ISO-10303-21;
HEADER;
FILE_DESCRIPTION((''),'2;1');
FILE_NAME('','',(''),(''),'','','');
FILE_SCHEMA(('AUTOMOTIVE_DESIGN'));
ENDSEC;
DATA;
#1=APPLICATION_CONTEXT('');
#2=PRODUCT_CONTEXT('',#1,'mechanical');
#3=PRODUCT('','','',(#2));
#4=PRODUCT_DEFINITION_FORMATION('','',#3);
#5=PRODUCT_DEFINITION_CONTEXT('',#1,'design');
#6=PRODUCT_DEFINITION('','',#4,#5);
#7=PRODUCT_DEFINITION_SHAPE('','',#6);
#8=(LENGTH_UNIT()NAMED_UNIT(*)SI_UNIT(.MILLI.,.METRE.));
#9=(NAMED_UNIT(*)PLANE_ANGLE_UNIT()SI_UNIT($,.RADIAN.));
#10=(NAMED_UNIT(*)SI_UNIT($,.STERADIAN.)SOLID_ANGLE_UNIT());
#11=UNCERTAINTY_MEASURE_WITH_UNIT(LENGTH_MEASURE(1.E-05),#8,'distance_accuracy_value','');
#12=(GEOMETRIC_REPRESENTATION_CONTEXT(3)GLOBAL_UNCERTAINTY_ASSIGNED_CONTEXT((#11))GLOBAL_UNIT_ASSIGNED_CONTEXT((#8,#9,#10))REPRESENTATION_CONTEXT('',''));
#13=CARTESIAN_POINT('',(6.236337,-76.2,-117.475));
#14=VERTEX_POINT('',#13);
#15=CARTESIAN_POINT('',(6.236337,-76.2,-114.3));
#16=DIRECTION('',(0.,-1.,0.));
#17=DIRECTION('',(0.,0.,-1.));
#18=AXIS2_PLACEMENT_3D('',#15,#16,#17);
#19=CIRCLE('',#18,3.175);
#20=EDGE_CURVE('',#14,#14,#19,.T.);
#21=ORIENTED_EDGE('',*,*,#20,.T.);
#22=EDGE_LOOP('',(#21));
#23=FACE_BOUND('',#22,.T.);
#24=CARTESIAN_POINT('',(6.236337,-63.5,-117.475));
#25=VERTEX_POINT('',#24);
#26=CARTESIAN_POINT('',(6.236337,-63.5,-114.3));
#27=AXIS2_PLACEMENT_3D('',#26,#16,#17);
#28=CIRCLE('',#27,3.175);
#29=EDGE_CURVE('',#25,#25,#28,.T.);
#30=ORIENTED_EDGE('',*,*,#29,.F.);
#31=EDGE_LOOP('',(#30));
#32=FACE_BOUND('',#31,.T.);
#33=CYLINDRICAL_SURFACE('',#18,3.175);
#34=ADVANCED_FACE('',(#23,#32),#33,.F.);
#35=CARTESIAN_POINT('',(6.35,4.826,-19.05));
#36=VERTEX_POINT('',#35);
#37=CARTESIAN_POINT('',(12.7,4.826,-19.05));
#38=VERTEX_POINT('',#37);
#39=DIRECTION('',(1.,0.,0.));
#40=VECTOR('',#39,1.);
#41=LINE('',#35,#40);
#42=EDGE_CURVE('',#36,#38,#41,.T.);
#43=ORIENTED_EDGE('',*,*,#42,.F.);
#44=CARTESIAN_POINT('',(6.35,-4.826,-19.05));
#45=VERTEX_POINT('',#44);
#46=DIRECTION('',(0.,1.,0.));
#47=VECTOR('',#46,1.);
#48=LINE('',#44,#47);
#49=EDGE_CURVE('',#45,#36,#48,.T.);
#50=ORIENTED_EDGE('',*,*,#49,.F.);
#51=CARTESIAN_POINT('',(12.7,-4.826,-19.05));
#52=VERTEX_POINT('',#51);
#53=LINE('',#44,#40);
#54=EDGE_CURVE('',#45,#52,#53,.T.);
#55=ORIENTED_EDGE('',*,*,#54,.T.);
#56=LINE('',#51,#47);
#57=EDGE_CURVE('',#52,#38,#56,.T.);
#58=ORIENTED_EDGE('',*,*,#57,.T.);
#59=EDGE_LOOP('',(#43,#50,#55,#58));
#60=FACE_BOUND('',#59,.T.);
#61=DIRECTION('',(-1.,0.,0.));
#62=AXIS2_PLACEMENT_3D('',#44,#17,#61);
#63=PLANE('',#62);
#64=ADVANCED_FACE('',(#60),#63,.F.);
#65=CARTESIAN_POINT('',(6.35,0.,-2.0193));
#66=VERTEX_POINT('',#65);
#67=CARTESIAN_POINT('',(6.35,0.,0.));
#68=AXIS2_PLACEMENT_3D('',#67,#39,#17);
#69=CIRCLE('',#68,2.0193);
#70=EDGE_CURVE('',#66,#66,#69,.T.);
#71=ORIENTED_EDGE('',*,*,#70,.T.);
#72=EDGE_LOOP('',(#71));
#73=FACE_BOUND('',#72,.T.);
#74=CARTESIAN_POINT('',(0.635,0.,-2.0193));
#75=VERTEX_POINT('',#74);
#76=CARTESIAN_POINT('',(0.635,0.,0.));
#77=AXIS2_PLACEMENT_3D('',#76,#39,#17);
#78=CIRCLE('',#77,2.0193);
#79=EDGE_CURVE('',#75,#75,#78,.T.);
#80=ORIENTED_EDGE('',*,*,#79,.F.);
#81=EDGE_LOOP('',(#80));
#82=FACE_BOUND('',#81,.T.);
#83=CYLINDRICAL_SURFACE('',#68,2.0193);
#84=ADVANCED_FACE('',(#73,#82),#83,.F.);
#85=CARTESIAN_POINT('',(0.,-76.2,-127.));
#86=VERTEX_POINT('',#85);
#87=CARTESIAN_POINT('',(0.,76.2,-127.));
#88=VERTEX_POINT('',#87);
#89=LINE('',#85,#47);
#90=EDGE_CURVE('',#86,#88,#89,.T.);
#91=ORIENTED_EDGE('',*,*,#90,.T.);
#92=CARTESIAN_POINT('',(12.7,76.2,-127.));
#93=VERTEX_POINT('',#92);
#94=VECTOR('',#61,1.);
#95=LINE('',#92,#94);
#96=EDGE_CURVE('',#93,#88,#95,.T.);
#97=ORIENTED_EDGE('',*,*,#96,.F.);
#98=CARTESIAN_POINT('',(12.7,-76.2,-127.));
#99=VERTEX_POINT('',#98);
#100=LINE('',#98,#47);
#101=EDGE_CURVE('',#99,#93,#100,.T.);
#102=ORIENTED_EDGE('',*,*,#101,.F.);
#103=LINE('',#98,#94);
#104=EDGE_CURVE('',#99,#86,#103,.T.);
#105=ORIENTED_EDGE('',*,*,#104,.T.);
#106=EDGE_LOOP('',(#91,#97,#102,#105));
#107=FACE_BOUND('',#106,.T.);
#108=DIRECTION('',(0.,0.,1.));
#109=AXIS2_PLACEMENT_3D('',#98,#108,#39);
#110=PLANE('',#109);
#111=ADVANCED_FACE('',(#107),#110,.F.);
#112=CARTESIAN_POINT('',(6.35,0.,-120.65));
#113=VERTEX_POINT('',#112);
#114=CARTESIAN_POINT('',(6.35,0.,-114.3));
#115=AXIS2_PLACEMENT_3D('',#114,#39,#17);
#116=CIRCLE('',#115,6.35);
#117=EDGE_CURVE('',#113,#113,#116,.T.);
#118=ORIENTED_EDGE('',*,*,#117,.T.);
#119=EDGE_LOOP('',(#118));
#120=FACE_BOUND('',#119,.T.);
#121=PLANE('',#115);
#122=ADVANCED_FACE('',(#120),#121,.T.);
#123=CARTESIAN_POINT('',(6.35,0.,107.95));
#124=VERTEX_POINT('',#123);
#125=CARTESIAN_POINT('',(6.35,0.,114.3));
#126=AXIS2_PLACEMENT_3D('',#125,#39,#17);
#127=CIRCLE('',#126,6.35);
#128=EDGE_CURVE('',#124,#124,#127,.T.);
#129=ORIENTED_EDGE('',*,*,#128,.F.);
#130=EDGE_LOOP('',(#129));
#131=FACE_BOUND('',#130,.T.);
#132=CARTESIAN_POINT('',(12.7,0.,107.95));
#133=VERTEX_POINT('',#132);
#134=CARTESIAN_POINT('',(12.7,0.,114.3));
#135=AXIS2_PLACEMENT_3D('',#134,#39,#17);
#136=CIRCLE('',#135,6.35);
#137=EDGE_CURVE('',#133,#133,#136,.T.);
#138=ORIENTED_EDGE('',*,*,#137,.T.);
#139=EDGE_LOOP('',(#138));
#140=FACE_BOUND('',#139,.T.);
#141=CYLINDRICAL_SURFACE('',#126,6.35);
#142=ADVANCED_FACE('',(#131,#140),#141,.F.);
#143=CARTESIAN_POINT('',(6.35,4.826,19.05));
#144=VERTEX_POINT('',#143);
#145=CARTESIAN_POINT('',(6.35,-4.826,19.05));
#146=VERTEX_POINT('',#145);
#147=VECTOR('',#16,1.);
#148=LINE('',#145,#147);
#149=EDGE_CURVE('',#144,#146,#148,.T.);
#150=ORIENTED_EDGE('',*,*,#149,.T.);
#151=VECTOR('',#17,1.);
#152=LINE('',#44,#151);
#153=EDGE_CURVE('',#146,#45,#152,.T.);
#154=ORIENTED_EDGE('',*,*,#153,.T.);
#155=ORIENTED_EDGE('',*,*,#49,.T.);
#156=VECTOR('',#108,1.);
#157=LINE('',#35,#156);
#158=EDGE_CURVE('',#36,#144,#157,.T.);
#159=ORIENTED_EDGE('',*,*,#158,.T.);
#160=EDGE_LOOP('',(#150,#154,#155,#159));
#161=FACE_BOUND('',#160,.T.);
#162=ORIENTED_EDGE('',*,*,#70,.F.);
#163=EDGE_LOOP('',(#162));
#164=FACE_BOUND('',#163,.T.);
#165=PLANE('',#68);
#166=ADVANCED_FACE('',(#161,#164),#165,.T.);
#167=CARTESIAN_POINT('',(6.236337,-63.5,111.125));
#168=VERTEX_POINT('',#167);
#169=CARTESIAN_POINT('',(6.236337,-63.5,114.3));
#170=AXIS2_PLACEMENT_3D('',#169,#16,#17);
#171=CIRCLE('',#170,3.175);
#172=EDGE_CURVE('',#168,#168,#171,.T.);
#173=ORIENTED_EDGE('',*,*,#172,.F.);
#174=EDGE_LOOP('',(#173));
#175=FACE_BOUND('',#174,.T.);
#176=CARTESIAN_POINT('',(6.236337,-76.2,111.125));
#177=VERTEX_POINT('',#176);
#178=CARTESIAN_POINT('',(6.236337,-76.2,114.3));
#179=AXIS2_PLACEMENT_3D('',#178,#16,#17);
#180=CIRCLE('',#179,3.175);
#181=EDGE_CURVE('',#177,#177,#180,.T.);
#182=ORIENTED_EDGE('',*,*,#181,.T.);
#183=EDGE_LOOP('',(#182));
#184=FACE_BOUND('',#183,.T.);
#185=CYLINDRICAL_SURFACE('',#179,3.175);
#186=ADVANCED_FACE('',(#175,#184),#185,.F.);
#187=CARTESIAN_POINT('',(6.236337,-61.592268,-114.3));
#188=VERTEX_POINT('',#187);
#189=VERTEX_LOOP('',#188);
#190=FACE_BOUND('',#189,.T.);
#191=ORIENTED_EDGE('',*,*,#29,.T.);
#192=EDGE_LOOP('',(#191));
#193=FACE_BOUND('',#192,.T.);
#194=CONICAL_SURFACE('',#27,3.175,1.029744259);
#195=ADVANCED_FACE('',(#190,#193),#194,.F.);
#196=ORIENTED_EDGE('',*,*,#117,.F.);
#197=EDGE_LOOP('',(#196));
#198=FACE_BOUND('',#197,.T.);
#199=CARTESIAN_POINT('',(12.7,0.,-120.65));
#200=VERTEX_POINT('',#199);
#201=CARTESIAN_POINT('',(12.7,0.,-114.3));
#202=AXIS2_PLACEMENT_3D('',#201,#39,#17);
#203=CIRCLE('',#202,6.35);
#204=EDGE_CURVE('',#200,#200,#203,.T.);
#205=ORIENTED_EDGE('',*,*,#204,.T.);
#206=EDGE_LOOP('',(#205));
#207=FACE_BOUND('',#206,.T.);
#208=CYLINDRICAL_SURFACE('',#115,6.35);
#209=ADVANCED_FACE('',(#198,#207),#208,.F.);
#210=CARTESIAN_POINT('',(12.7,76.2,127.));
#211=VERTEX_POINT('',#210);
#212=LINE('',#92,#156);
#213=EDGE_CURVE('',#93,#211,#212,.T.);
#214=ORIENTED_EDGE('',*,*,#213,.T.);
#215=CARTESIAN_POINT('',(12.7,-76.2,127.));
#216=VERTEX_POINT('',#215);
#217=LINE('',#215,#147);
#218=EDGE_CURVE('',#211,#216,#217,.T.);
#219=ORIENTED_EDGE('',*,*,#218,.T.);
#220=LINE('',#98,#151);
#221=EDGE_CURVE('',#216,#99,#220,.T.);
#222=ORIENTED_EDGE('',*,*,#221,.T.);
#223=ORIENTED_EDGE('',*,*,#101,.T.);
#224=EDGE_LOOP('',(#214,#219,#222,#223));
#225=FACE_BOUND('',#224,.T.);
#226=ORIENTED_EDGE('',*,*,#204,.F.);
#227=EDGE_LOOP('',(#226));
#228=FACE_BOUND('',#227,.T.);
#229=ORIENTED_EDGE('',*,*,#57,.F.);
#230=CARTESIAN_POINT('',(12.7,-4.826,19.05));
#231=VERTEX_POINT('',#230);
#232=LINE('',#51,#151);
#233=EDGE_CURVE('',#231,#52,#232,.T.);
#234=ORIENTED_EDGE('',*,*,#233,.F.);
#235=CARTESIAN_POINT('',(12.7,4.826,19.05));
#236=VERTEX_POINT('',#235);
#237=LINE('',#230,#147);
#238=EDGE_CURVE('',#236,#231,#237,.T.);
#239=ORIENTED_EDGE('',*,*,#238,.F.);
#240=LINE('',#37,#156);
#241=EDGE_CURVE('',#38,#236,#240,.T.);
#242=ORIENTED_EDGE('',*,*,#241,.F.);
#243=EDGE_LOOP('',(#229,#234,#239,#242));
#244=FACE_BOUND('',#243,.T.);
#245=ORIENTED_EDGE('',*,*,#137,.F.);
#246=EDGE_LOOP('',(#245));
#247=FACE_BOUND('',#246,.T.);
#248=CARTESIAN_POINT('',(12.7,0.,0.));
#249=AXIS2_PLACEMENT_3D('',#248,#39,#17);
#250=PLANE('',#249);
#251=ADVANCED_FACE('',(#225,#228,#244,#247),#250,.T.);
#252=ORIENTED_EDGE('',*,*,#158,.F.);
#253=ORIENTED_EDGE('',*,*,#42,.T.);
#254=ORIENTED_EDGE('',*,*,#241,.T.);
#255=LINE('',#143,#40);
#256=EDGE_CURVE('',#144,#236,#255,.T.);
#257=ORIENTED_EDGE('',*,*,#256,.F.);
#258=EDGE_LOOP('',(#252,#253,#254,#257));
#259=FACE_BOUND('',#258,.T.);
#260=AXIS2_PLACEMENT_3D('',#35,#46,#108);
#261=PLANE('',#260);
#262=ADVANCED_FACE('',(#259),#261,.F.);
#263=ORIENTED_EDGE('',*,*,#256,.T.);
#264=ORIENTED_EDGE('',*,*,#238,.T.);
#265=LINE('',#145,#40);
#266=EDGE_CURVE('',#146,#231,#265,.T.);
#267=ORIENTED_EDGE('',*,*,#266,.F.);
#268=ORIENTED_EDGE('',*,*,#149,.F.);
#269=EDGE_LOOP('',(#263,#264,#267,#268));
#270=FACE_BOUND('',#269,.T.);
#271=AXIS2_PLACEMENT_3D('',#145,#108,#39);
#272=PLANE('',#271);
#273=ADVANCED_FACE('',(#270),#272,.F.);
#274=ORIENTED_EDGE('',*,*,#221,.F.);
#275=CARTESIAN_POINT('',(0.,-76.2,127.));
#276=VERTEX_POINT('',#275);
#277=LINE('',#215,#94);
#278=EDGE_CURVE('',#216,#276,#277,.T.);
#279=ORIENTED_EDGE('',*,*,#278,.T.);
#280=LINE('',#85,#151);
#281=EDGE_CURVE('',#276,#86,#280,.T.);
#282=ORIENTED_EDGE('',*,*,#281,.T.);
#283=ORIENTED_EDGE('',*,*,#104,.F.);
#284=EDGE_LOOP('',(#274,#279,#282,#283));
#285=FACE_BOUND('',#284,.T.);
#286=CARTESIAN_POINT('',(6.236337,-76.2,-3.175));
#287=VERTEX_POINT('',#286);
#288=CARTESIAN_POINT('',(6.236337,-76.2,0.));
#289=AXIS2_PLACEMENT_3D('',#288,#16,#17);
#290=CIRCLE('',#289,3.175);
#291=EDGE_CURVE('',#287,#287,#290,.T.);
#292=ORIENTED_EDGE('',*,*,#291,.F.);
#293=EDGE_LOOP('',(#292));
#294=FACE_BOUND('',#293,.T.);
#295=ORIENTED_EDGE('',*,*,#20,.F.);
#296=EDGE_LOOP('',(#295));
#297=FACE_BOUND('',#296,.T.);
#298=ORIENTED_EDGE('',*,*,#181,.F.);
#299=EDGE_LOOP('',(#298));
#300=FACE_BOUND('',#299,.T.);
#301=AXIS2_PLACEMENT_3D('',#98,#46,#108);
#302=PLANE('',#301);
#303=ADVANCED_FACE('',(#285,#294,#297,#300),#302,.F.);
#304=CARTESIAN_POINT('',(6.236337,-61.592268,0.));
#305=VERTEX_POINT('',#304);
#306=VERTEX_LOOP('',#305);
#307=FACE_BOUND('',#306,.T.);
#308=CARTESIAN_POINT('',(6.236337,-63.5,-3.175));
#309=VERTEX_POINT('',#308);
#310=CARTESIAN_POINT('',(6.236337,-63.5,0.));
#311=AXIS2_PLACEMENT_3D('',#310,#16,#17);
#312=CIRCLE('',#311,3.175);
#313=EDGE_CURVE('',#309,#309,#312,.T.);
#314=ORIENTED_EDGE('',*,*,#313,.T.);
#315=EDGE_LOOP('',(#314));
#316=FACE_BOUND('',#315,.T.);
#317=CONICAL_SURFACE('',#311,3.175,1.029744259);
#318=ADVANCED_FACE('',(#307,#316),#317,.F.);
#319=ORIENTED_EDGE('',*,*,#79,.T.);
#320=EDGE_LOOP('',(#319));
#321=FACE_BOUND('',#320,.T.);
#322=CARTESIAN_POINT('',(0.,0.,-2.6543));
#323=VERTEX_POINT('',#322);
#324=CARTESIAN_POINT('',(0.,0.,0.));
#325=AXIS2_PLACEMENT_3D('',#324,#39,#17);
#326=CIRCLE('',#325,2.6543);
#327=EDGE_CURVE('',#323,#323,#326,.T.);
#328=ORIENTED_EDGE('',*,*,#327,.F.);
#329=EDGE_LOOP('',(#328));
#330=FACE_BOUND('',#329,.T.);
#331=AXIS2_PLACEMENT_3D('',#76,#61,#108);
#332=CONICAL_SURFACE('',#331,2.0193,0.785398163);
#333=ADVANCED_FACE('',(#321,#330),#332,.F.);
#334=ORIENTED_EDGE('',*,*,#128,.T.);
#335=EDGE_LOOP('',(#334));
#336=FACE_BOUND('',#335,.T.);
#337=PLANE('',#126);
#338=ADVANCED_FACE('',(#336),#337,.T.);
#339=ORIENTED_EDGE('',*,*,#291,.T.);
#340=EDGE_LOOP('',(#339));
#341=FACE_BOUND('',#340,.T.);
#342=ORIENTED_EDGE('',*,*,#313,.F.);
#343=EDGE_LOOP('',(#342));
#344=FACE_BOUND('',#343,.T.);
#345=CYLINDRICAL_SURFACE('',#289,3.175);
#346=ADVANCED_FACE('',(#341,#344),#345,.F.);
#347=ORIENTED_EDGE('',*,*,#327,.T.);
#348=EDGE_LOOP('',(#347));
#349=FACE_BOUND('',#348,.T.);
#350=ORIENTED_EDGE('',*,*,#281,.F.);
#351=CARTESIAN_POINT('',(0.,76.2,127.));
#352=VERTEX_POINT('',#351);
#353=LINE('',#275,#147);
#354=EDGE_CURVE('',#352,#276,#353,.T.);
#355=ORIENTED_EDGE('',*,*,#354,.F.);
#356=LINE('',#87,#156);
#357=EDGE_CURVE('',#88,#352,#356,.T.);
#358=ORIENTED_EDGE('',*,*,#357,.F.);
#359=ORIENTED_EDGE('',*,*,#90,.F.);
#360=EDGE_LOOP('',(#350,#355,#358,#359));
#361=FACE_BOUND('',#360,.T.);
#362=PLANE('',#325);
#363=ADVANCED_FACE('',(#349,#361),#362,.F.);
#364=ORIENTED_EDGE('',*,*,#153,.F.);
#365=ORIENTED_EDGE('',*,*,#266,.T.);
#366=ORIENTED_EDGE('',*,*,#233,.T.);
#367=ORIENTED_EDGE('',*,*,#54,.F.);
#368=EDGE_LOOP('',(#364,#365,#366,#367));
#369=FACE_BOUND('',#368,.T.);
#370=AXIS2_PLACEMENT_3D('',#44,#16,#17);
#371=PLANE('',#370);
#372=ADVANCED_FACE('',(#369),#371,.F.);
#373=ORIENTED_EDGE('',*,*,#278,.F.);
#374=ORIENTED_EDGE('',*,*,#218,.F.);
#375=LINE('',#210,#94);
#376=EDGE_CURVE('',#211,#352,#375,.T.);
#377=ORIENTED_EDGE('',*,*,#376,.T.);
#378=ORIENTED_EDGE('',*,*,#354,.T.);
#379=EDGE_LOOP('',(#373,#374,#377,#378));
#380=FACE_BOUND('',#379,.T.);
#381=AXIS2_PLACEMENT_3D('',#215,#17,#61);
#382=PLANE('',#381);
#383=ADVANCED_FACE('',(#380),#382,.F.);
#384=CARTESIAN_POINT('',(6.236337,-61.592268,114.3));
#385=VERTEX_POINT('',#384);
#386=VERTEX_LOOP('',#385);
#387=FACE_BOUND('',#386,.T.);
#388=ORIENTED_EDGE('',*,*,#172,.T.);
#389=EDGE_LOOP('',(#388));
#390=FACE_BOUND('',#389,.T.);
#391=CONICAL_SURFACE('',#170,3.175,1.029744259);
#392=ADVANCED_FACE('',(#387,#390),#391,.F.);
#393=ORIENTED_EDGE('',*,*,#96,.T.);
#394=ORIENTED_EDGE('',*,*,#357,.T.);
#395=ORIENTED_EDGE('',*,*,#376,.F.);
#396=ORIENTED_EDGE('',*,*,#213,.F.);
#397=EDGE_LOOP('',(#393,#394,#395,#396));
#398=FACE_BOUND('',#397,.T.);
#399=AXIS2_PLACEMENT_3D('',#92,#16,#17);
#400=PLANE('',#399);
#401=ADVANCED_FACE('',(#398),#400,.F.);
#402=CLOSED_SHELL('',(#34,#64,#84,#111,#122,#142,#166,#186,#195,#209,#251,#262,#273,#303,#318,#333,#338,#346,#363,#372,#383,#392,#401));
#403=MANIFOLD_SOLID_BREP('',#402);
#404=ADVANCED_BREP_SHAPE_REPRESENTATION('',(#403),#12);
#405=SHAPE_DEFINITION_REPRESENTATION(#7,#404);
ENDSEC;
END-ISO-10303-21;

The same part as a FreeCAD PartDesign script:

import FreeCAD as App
import Part
import Sketcher
from FreeCAD import Vector
Q = App.Units.Quantity


def add_polygon(sketch, points):
    """Adds a closed chain of lines whose ends are joined by coincident constraints."""
    first, n = sketch.GeometryCount, len(points)
    for a, b in zip(points, points[1:] + points[:1]):
        sketch.addGeometry(Part.LineSegment(App.Vector(*a, 0), App.Vector(*b, 0)), False)
    for i in range(n):
        sketch.addConstraint(Sketcher.Constraint("Coincident", first + i, 2, first + (i + 1) % n, 1))

doc = App.newDocument("Part")
body = doc.addObject("PartDesign::Body", "Body")

# Sketch on YZ plane
sketch1 = doc.addObject("Sketcher::SketchObject", "Sketch")
body.addObject(sketch1)
sketch1.AttachmentSupport = (doc.YZ_Plane, [""])
sketch1.MapMode = "FlatFace"
add_polygon(sketch1, [(76.2, 127), (-76.2, 127), (-76.2, -127), (76.2, -127)])  # lines 0-3
sketch1.addConstraint(Sketcher.Constraint("Horizontal", 0))
sketch1.addConstraint(Sketcher.Constraint("Vertical", 1))
sketch1.addConstraint(Sketcher.Constraint("Horizontal", 2))
sketch1.addConstraint(Sketcher.Constraint("Vertical", 3))
sketch1.addConstraint(Sketcher.Constraint("Symmetric", 0, 2, 2, 2, -1, 1))
sketch1.addConstraint(Sketcher.Constraint("DistanceX", 0, 2, 0, 1, Q("6 in")))
sketch1.addConstraint(Sketcher.Constraint("DistanceY", 1, 2, 1, 1, Q("10 in")))
pad1 = doc.addObject("PartDesign::Pad", "Pad")
body.addObject(pad1)
pad1.Profile = sketch1
pad1.Length = Q("0.5 in")

# Sketch on YZ plane
sketch2 = doc.addObject("Sketcher::SketchObject", "Sketch001")
body.addObject(sketch2)
sketch2.AttachmentSupport = (doc.YZ_Plane, [""])
sketch2.MapMode = "FlatFace"
sketch2.AttachmentOffset = App.Placement(Vector(0, 0, 0.5 * 25.4), App.Rotation())
sketch2.addGeometry(Part.Circle(Vector(0, -114.3, 0), Vector(0, 0, 1), 6.35), False)
sketch2.addGeometry(Part.Circle(Vector(0, 114.3, 0), Vector(0, 0, 1), 6.35), False)
sketch2.addConstraint(Sketcher.Constraint("Equal", 0, 1))
sketch2.addConstraint(Sketcher.Constraint("Symmetric", 0, 3, 1, 3, -1, 1))
sketch2.addConstraint(Sketcher.Constraint("PointOnObject", 0, 3, -2))
sketch2.addConstraint(Sketcher.Constraint("Diameter", 0, Q("0.5 in")))
sketch2.addConstraint(Sketcher.Constraint("DistanceY", 0, 3, 1, 3, Q("9 in")))
pocket1 = doc.addObject("PartDesign::Pocket", "Pocket")
body.addObject(pocket1)
pocket1.Profile = sketch2
pocket1.Length = Q("0.25 in")

# Sketch on XZ plane
sketch3 = doc.addObject("Sketcher::SketchObject", "Sketch002")
body.addObject(sketch3)
sketch3.AttachmentSupport = (doc.XZ_Plane, [""])
sketch3.MapMode = "FlatFace"
sketch3.AttachmentOffset = App.Placement(Vector(0, 0, 3 * 25.4), App.Rotation())
sketch3.addGeometry(Part.Circle(Vector(6.236337, 114.3, 0), Vector(0, 0, 1), 3.175), False)
sketch3.addGeometry(Part.Circle(Vector(6.236337, 0, 0), Vector(0, 0, 1), 3.175), False)
sketch3.addGeometry(Part.Circle(Vector(6.236337, -114.3, 0), Vector(0, 0, 1), 3.175), False)
sketch3.addConstraint(Sketcher.Constraint("Equal", 0, 1))
sketch3.addConstraint(Sketcher.Constraint("Equal", 1, 2))
sketch3.addConstraint(Sketcher.Constraint("Symmetric", 0, 3, 2, 3, -1))
sketch3.addConstraint(Sketcher.Constraint("PointOnObject", 1, 3, -1))
sketch3.addConstraint(Sketcher.Constraint("Vertical", 0, 3, 1, 3))
sketch3.addConstraint(Sketcher.Constraint("Diameter", 0, Q("0.25 in")))
sketch3.addConstraint(Sketcher.Constraint("DistanceY", 2, 3, 0, 3, Q("9 in")))
sketch3.addConstraint(Sketcher.Constraint("DistanceX", -1, 1, 0, 3, 6.236337))
doc.recompute()
hole = doc.addObject("PartDesign::Hole", "Hole")
body.addObject(hole)
hole.Profile = sketch3
hole.ThreadType = "None"
hole.Diameter = Q("0.25 in")
hole.DepthType = "Dimension"
hole.Depth = Q("0.5 in")
hole.DrillPoint = "Angled"
hole.DrillPointAngle = 118

# Sketch on YZ plane
sketch4 = doc.addObject("Sketcher::SketchObject", "Sketch003")
body.addObject(sketch4)
sketch4.AttachmentSupport = (doc.YZ_Plane, [""])
sketch4.MapMode = "FlatFace"
sketch4.AttachmentOffset = App.Placement(Vector(0, 0, 0.5 * 25.4), App.Rotation())
add_polygon(sketch4, [(4.826, 19.05), (-4.826, 19.05), (-4.826, -19.05), (4.826, -19.05)])  # lines 0-3
sketch4.addConstraint(Sketcher.Constraint("Horizontal", 0))
sketch4.addConstraint(Sketcher.Constraint("Vertical", 1))
sketch4.addConstraint(Sketcher.Constraint("Horizontal", 2))
sketch4.addConstraint(Sketcher.Constraint("Vertical", 3))
sketch4.addConstraint(Sketcher.Constraint("Symmetric", 0, 2, 2, 2, -1, 1))
sketch4.addConstraint(Sketcher.Constraint("DistanceY", 1, 2, 1, 1, Q("1.5 in")))
sketch4.addConstraint(Sketcher.Constraint("DistanceX", 0, 2, 0, 1, Q("0.38 in")))
pocket2 = doc.addObject("PartDesign::Pocket", "Pocket001")
body.addObject(pocket2)
pocket2.Profile = sketch4
pocket2.Length = Q("0.25 in")

# Sketch on XZ plane
sketch5 = doc.addObject("Sketcher::SketchObject", "Sketch004")
body.addObject(sketch5)
sketch5.AttachmentSupport = (doc.XZ_Plane, [""])
sketch5.MapMode = "FlatFace"
add_polygon(sketch5, [(0, 0), (6.35, 0), (6.35, -2.0193), (0.635, -2.0193), (0, -2.6543)])  # lines 0-4
sketch5.addConstraint(Sketcher.Constraint("Horizontal", 0))
sketch5.addConstraint(Sketcher.Constraint("Vertical", 1))
sketch5.addConstraint(Sketcher.Constraint("Horizontal", 2))
sketch5.addConstraint(Sketcher.Constraint("Vertical", 4))
sketch5.addConstraint(Sketcher.Constraint("Coincident", 4, 2, -1, 1))
sketch5.addConstraint(Sketcher.Constraint("Angle", 3, Q("-135 deg")))
sketch5.addConstraint(Sketcher.Constraint("DistanceX", 0, 1, 0, 2, Q("0.25 in")))
sketch5.addConstraint(Sketcher.Constraint("DistanceX", 2, 2, 2, 1, Q("0.225 in")))
sketch5.addConstraint(Sketcher.Constraint("DistanceY", 1, 2, 1, 1, Q("0.0795 in")))
groove = doc.addObject("PartDesign::Groove", "Groove")
body.addObject(groove)
groove.Profile = sketch5
groove.ReferenceAxis = (sketch5, ["H_Axis"])
groove.Angle = 360

doc.recompute()
